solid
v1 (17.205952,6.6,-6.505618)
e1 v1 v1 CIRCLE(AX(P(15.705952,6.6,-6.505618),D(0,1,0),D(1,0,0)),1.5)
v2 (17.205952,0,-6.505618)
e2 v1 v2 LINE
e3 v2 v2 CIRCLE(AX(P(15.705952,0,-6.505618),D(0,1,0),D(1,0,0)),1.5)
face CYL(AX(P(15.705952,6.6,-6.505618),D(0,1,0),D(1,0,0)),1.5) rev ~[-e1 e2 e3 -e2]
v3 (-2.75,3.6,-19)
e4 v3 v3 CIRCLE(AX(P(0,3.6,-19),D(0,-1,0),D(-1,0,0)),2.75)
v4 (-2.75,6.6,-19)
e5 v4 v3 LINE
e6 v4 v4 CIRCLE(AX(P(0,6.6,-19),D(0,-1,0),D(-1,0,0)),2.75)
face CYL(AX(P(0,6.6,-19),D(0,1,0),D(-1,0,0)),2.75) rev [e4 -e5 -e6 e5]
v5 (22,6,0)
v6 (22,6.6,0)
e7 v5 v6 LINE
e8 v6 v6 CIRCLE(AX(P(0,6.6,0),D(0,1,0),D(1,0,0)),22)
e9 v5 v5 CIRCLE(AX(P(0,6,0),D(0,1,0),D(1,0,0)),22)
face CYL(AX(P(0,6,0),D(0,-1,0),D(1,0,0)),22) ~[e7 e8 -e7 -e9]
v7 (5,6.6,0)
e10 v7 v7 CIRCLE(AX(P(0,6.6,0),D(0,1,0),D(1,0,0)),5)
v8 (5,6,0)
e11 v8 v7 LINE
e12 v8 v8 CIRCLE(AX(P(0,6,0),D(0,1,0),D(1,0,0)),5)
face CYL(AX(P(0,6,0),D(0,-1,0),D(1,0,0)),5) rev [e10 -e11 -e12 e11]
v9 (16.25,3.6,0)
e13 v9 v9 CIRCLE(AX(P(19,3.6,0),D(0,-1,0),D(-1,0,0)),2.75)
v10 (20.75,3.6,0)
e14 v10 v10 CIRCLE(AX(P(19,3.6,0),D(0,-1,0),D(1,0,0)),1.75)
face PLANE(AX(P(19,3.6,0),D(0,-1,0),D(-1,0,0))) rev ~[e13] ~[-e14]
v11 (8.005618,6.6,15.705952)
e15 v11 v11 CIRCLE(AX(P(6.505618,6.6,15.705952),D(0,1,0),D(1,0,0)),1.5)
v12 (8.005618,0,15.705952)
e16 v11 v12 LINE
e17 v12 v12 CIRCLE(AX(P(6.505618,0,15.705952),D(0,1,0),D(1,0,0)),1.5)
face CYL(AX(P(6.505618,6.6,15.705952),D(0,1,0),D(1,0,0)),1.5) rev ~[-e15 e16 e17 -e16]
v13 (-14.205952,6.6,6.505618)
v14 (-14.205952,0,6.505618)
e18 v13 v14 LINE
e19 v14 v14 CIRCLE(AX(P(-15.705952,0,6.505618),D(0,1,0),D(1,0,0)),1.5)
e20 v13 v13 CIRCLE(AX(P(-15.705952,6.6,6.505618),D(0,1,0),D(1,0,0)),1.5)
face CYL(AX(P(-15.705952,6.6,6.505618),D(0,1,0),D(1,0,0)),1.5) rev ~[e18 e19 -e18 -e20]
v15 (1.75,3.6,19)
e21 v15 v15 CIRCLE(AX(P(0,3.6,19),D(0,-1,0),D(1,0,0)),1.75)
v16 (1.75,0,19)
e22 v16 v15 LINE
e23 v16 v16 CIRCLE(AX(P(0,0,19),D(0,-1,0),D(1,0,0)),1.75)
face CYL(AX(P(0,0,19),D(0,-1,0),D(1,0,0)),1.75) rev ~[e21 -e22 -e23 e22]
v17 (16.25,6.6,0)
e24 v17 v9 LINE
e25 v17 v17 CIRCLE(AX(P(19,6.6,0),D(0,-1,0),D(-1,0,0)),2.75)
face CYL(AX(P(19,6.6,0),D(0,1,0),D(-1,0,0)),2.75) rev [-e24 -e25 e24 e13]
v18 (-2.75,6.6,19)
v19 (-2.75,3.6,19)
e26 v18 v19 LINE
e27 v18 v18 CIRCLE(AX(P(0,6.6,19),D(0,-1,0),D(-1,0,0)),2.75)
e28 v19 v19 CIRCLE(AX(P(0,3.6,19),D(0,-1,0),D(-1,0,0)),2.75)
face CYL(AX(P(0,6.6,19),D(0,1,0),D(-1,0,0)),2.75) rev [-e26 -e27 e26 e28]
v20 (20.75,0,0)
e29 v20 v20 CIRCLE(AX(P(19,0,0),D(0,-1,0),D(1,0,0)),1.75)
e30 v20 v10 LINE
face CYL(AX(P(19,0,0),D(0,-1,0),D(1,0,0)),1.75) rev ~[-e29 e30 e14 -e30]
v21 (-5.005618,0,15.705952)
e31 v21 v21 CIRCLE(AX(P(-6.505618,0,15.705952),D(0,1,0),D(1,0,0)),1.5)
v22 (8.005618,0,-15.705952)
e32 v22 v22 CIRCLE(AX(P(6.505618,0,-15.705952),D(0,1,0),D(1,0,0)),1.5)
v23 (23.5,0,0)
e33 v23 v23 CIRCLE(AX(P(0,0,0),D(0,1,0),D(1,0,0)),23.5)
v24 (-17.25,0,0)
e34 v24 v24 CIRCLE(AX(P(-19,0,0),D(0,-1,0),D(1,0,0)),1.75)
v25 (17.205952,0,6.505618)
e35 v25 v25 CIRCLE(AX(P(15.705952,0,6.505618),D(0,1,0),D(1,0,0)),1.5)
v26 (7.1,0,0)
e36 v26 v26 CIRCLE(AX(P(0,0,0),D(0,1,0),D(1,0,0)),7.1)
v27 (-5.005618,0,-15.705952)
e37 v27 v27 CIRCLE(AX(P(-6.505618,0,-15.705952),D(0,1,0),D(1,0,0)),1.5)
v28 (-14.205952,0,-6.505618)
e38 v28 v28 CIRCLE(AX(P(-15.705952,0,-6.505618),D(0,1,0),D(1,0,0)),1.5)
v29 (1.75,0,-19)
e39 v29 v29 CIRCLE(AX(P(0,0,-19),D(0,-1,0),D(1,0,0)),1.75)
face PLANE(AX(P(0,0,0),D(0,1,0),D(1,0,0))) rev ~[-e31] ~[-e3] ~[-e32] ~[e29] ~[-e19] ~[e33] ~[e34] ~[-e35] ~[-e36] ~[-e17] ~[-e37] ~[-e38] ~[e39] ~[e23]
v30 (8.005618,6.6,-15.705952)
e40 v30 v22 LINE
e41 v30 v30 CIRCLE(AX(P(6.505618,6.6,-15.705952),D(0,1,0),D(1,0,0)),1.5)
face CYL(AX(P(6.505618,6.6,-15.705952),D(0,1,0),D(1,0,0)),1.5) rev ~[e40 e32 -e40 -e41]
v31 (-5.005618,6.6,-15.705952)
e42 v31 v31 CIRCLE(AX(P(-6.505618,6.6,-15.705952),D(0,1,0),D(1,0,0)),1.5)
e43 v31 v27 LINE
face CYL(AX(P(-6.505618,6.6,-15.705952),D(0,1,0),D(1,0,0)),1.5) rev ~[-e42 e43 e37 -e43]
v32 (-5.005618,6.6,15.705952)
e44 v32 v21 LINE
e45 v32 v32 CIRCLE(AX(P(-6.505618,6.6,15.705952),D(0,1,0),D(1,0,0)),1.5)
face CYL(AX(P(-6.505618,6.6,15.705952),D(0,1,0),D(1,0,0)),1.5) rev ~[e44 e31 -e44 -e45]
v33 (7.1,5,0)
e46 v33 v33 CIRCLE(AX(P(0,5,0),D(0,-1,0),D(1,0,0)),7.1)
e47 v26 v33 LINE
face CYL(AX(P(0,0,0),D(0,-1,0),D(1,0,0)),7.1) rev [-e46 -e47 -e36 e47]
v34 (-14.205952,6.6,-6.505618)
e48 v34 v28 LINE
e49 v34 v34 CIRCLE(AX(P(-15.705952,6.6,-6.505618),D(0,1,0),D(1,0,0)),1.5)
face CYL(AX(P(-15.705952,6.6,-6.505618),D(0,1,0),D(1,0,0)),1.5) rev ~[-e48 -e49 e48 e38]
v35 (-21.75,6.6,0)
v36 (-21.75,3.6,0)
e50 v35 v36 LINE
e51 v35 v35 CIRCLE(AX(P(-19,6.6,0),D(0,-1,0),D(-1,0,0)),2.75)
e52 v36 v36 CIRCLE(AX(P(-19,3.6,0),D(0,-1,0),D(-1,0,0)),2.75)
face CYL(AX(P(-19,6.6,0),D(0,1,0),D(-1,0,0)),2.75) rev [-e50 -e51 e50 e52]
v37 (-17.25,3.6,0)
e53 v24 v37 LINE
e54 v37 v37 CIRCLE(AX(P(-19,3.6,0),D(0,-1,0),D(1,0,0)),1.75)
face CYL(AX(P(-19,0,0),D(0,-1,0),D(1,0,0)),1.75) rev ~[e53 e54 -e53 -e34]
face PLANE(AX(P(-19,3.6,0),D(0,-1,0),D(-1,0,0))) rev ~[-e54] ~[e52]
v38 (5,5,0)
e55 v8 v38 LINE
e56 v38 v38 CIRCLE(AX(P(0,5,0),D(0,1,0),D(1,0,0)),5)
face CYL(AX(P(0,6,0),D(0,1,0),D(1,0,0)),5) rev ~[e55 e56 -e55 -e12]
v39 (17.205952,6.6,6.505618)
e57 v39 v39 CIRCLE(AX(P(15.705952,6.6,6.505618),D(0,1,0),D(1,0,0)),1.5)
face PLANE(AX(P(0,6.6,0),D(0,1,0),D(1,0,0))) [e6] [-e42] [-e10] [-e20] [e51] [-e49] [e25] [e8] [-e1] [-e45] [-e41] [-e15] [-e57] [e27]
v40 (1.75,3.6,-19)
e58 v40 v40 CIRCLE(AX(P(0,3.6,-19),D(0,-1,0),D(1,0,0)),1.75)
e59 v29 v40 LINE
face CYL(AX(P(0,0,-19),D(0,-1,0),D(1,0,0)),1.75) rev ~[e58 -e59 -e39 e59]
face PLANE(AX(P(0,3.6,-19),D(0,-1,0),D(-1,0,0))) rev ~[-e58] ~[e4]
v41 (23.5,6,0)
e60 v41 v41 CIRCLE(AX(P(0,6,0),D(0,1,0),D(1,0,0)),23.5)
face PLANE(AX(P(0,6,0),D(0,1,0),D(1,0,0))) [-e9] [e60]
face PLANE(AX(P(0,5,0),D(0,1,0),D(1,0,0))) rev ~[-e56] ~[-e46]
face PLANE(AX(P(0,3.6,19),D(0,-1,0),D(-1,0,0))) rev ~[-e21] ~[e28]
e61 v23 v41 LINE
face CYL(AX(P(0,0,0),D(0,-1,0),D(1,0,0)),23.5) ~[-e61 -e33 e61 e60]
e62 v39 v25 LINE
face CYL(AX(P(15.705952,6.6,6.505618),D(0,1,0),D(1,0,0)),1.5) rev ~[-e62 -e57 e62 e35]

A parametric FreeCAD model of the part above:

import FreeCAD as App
import Part
import Sketcher
from FreeCAD import Vector
Q = App.Units.Quantity

doc = App.newDocument("Part")
params = doc.addObject("Spreadsheet::Sheet", "Params")
for row, (alias, value) in enumerate([
    ("sketch1_diameter", "47 mm"),
    ("sketch1_diameter2", "14.2 mm"),
    ("pad1_length", "6 mm"),
    ("sketch2_diameter", "44 mm"),
    ("sketch2_diameter2", "10 mm"),
    ("pad2_length", "0.6 mm"),
    ("pad2_length2", "1 mm"),
    ("sketch3_diameter", "3.5 mm"),
    ("sketch4_diameter", "5.5 mm"),
    ("sketch4_diameter2", "3.5 mm"),
    ("pocket2_length", "3 mm"),
    ("sketch5_diameter", "3 mm"),
], start=1):
    params.set(f"A{row}", alias)
    params.set(f"B{row}", "=" + value)
    params.setAlias(f"B{row}", alias)

body = doc.addObject("PartDesign::Body", "Body")

# Sketch on XZ plane
sketch1 = body.newObject("Sketcher::SketchObject", "Sketch")
sketch1.AttachmentSupport = (doc.getObject("XZ_Plane"), [""])
sketch1.MapMode = "FlatFace"
sketch1.addGeometry(Part.Circle(Vector(0, 0, 0), Vector(0, 0, 1), 24), False)
sketch1.addGeometry(Part.Circle(Vector(0, 0, 0), Vector(0, 0, 1), 7), False)
sketch1.addConstraint(Sketcher.Constraint("Coincident", 0, 3, -1, 1))
sketch1.addConstraint(Sketcher.Constraint("Coincident", 1, 3, -1, 1))
sketch1.addConstraint(Sketcher.Constraint("Diameter", 0, Q("47 mm")))
sketch1.addConstraint(Sketcher.Constraint("Diameter", 1, Q("14.2 mm")))
sketch1.setExpression("Constraints[2]", "Params.sketch1_diameter")
sketch1.setExpression("Constraints[3]", "Params.sketch1_diameter2")
pad1 = body.newObject("PartDesign::Pad", "Pad")
pad1.Profile = sketch1
pad1.setExpression("Length", "Params.pad1_length")
pad1.Reversed = True

# Sketch on XZ plane
sketch2 = body.newObject("Sketcher::SketchObject", "Sketch001")
sketch2.AttachmentSupport = (doc.getObject("XZ_Plane"), [""])
sketch2.MapMode = "FlatFace"
sketch2.AttachmentOffset = App.Placement(Vector(0, 0, -6), App.Rotation())
sketch2.addGeometry(Part.Circle(Vector(0, 0, 0), Vector(0, 0, 1), 22), False)
sketch2.addGeometry(Part.Circle(Vector(0, 0, 0), Vector(0, 0, 1), 5), False)
sketch2.addConstraint(Sketcher.Constraint("Coincident", 0, 3, -1, 1))
sketch2.addConstraint(Sketcher.Constraint("Coincident", 1, 3, -1, 1))
sketch2.addConstraint(Sketcher.Constraint("Diameter", 0, Q("44 mm")))
sketch2.addConstraint(Sketcher.Constraint("Diameter", 1, Q("10 mm")))
sketch2.setExpression("Constraints[2]", "Params.sketch2_diameter")
sketch2.setExpression("Constraints[3]", "Params.sketch2_diameter2")
pad2 = body.newObject("PartDesign::Pad", "Pad001")
pad2.Profile = sketch2
pad2.Type = "TwoLengths"
pad2.setExpression("Length", "Params.pad2_length")
pad2.setExpression("Length2", "Params.pad2_length2")
pad2.Reversed = True

# Sketch on XZ plane
sketch3 = body.newObject("Sketcher::SketchObject", "Sketch002")
sketch3.AttachmentSupport = (doc.getObject("XZ_Plane"), [""])
sketch3.MapMode = "FlatFace"
sketch3.addGeometry(Part.Circle(Vector(0, 19, 0), Vector(0, 0, 1), 1.8), False)
sketch3.addGeometry(Part.Circle(Vector(19, 0, 0), Vector(0, 0, 1), 1.8), False)
sketch3.addGeometry(Part.Circle(Vector(0, -19, 0), Vector(0, 0, 1), 1.8), False)
sketch3.addGeometry(Part.Circle(Vector(-19, 0, 0), Vector(0, 0, 1), 1.8), False)
sketch3.addConstraint(Sketcher.Constraint("Equal", 0, 1))
sketch3.addConstraint(Sketcher.Constraint("Equal", 1, 2))
sketch3.addConstraint(Sketcher.Constraint("Equal", 2, 3))
sketch3.addConstraint(Sketcher.Constraint("Symmetric", 0, 3, 2, 3, -1, 1))
sketch3.addConstraint(Sketcher.Constraint("Symmetric", 1, 3, 3, 3, -1, 1))
sketch3.addConstraint(Sketcher.Constraint("PointOnObject", 0, 3, -2))
sketch3.addConstraint(Sketcher.Constraint("PointOnObject", 1, 3, -1))
sketch3.addConstraint(Sketcher.Constraint("Diameter", 0, Q("3.5 mm")))
sketch3.addConstraint(Sketcher.Constraint("DistanceY", -1, 1, 0, 3, Q("19 mm")))
sketch3.addConstraint(Sketcher.Constraint("DistanceX", -1, 1, 1, 3, Q("19 mm")))
sketch3.setExpression("Constraints[7]", "Params.sketch3_diameter")
pocket1 = body.newObject("PartDesign::Pocket", "Pocket")
pocket1.Profile = sketch3
pocket1.Type = "ThroughAll"

# Sketch on XZ plane
sketch4 = body.newObject("Sketcher::SketchObject", "Sketch003")
sketch4.AttachmentSupport = (doc.getObject("XZ_Plane"), [""])
sketch4.MapMode = "FlatFace"
sketch4.AttachmentOffset = App.Placement(Vector(0, 0, -6.6), App.Rotation())
sketch4.addGeometry(Part.Circle(Vector(0, -19, 0), Vector(0, 0, 1), 2.8), False)
sketch4.addGeometry(Part.Circle(Vector(0, -19, 0), Vector(0, 0, 1), 1.8), False)
sketch4.addGeometry(Part.Circle(Vector(-19, 0, 0), Vector(0, 0, 1), 2.8), False)
sketch4.addGeometry(Part.Circle(Vector(-19, 0, 0), Vector(0, 0, 1), 1.8), False)
sketch4.addGeometry(Part.Circle(Vector(19, 0, 0), Vector(0, 0, 1), 2.8), False)
sketch4.addGeometry(Part.Circle(Vector(19, 0, 0), Vector(0, 0, 1), 1.8), False)
sketch4.addGeometry(Part.Circle(Vector(0, 19, 0), Vector(0, 0, 1), 2.8), False)
sketch4.addGeometry(Part.Circle(Vector(0, 19, 0), Vector(0, 0, 1), 1.8), False)
sketch4.addConstraint(Sketcher.Constraint("Coincident", 1, 3, 0, 3))
sketch4.addConstraint(Sketcher.Constraint("Coincident", 3, 3, 2, 3))
sketch4.addConstraint(Sketcher.Constraint("Coincident", 5, 3, 4, 3))
sketch4.addConstraint(Sketcher.Constraint("Coincident", 7, 3, 6, 3))
sketch4.addConstraint(Sketcher.Constraint("Equal", 0, 2))
sketch4.addConstraint(Sketcher.Constraint("Equal", 1, 3))
sketch4.addConstraint(Sketcher.Constraint("Equal", 2, 4))
sketch4.addConstraint(Sketcher.Constraint("Equal", 3, 5))
sketch4.addConstraint(Sketcher.Constraint("Equal", 4, 6))
sketch4.addConstraint(Sketcher.Constraint("Equal", 5, 7))
sketch4.addConstraint(Sketcher.Constraint("Symmetric", 2, 3, 4, 3, -1, 1))
sketch4.addConstraint(Sketcher.Constraint("Symmetric", 0, 3, 6, 3, -1, 1))
sketch4.addConstraint(Sketcher.Constraint("PointOnObject", 0, 3, -2))
sketch4.addConstraint(Sketcher.Constraint("PointOnObject", 2, 3, -1))
sketch4.addConstraint(Sketcher.Constraint("Diameter", 0, Q("5.5 mm")))
sketch4.addConstraint(Sketcher.Constraint("Diameter", 1, Q("3.5 mm")))
sketch4.addConstraint(Sketcher.Constraint("DistanceY", 0, 3, -1, 1, Q("19 mm")))
sketch4.addConstraint(Sketcher.Constraint("DistanceX", 2, 3, -1, 1, Q("19 mm")))
sketch4.setExpression("Constraints[14]", "Params.sketch4_diameter")
sketch4.setExpression("Constraints[15]", "Params.sketch4_diameter2")
pocket2 = body.newObject("PartDesign::Pocket", "Pocket001")
pocket2.Profile = sketch4
pocket2.setExpression("Length", "Params.pocket2_length")
pocket2.Reversed = True

# Sketch on XZ plane
sketch5 = body.newObject("Sketcher::SketchObject", "Sketch004")
sketch5.AttachmentSupport = (doc.getObject("XZ_Plane"), [""])
sketch5.MapMode = "FlatFace"
sketch5.AttachmentOffset = App.Placement(Vector(0, 0, -6.6), App.Rotation())
sketch5.addGeometry(Part.Circle(Vector(-6.5, -15.7, 0), Vector(0, 0, 1), 1.5), False)
sketch5.addGeometry(Part.Circle(Vector(6.5, -15.7, 0), Vector(0, 0, 1), 1.5), False)
sketch5.addGeometry(Part.Circle(Vector(15.7, -6.5, 0), Vector(0, 0, 1), 1.5), False)
sketch5.addGeometry(Part.Circle(Vector(15.7, 6.5, 0), Vector(0, 0, 1), 1.5), False)
sketch5.addGeometry(Part.Circle(Vector(6.5, 15.7, 0), Vector(0, 0, 1), 1.5), False)
sketch5.addGeometry(Part.Circle(Vector(-6.5, 15.7, 0), Vector(0, 0, 1), 1.5), False)
sketch5.addGeometry(Part.Circle(Vector(-15.7, 6.5, 0), Vector(0, 0, 1), 1.5), False)
sketch5.addGeometry(Part.Circle(Vector(-15.7, -6.5, 0), Vector(0, 0, 1), 1.5), False)
sketch5.addConstraint(Sketcher.Constraint("Equal", 0, 1))
sketch5.addConstraint(Sketcher.Constraint("Equal", 1, 2))
sketch5.addConstraint(Sketcher.Constraint("Equal", 2, 3))
sketch5.addConstraint(Sketcher.Constraint("Equal", 3, 4))
sketch5.addConstraint(Sketcher.Constraint("Equal", 4, 5))
sketch5.addConstraint(Sketcher.Constraint("Equal", 5, 6))
sketch5.addConstraint(Sketcher.Constraint("Equal", 6, 7))
sketch5.addConstraint(Sketcher.Constraint("Symmetric", 0, 3, 4, 3, -1, 1))
sketch5.addConstraint(Sketcher.Constraint("Symmetric", 1, 3, 5, 3, -1, 1))
sketch5.addConstraint(Sketcher.Constraint("Symmetric", 2, 3, 6, 3, -1, 1))
sketch5.addConstraint(Sketcher.Constraint("Symmetric", 3, 3, 7, 3, -1, 1))
sketch5.addConstraint(Sketcher.Constraint("Symmetric", 0, 3, 1, 3, -2))
sketch5.addConstraint(Sketcher.Constraint("Symmetric", 3, 3, 6, 3, -2))
sketch5.addConstraint(Sketcher.Constraint("Diameter", 0, Q("3 mm")))
sketch5.addConstraint(Sketcher.Constraint("DistanceX", 0, 3, -1, 1, Q("6.505618 mm")))
sketch5.addConstraint(Sketcher.Constraint("DistanceY", 2, 3, -1, 1, Q("6.505618 mm")))
sketch5.addConstraint(Sketcher.Constraint("DistanceX", 0, 3, 2, 3, Q("22.21157 mm")))
sketch5.addConstraint(Sketcher.Constraint("DistanceY", 1, 3, 3, 3, Q("22.21157 mm")))
sketch5.setExpression("Constraints[13]", "Params.sketch5_diameter")
pocket3 = body.newObject("PartDesign::Pocket", "Pocket002")
pocket3.Profile = sketch5
pocket3.Type = "ThroughAll"
pocket3.Reversed = True

doc.recompute()
